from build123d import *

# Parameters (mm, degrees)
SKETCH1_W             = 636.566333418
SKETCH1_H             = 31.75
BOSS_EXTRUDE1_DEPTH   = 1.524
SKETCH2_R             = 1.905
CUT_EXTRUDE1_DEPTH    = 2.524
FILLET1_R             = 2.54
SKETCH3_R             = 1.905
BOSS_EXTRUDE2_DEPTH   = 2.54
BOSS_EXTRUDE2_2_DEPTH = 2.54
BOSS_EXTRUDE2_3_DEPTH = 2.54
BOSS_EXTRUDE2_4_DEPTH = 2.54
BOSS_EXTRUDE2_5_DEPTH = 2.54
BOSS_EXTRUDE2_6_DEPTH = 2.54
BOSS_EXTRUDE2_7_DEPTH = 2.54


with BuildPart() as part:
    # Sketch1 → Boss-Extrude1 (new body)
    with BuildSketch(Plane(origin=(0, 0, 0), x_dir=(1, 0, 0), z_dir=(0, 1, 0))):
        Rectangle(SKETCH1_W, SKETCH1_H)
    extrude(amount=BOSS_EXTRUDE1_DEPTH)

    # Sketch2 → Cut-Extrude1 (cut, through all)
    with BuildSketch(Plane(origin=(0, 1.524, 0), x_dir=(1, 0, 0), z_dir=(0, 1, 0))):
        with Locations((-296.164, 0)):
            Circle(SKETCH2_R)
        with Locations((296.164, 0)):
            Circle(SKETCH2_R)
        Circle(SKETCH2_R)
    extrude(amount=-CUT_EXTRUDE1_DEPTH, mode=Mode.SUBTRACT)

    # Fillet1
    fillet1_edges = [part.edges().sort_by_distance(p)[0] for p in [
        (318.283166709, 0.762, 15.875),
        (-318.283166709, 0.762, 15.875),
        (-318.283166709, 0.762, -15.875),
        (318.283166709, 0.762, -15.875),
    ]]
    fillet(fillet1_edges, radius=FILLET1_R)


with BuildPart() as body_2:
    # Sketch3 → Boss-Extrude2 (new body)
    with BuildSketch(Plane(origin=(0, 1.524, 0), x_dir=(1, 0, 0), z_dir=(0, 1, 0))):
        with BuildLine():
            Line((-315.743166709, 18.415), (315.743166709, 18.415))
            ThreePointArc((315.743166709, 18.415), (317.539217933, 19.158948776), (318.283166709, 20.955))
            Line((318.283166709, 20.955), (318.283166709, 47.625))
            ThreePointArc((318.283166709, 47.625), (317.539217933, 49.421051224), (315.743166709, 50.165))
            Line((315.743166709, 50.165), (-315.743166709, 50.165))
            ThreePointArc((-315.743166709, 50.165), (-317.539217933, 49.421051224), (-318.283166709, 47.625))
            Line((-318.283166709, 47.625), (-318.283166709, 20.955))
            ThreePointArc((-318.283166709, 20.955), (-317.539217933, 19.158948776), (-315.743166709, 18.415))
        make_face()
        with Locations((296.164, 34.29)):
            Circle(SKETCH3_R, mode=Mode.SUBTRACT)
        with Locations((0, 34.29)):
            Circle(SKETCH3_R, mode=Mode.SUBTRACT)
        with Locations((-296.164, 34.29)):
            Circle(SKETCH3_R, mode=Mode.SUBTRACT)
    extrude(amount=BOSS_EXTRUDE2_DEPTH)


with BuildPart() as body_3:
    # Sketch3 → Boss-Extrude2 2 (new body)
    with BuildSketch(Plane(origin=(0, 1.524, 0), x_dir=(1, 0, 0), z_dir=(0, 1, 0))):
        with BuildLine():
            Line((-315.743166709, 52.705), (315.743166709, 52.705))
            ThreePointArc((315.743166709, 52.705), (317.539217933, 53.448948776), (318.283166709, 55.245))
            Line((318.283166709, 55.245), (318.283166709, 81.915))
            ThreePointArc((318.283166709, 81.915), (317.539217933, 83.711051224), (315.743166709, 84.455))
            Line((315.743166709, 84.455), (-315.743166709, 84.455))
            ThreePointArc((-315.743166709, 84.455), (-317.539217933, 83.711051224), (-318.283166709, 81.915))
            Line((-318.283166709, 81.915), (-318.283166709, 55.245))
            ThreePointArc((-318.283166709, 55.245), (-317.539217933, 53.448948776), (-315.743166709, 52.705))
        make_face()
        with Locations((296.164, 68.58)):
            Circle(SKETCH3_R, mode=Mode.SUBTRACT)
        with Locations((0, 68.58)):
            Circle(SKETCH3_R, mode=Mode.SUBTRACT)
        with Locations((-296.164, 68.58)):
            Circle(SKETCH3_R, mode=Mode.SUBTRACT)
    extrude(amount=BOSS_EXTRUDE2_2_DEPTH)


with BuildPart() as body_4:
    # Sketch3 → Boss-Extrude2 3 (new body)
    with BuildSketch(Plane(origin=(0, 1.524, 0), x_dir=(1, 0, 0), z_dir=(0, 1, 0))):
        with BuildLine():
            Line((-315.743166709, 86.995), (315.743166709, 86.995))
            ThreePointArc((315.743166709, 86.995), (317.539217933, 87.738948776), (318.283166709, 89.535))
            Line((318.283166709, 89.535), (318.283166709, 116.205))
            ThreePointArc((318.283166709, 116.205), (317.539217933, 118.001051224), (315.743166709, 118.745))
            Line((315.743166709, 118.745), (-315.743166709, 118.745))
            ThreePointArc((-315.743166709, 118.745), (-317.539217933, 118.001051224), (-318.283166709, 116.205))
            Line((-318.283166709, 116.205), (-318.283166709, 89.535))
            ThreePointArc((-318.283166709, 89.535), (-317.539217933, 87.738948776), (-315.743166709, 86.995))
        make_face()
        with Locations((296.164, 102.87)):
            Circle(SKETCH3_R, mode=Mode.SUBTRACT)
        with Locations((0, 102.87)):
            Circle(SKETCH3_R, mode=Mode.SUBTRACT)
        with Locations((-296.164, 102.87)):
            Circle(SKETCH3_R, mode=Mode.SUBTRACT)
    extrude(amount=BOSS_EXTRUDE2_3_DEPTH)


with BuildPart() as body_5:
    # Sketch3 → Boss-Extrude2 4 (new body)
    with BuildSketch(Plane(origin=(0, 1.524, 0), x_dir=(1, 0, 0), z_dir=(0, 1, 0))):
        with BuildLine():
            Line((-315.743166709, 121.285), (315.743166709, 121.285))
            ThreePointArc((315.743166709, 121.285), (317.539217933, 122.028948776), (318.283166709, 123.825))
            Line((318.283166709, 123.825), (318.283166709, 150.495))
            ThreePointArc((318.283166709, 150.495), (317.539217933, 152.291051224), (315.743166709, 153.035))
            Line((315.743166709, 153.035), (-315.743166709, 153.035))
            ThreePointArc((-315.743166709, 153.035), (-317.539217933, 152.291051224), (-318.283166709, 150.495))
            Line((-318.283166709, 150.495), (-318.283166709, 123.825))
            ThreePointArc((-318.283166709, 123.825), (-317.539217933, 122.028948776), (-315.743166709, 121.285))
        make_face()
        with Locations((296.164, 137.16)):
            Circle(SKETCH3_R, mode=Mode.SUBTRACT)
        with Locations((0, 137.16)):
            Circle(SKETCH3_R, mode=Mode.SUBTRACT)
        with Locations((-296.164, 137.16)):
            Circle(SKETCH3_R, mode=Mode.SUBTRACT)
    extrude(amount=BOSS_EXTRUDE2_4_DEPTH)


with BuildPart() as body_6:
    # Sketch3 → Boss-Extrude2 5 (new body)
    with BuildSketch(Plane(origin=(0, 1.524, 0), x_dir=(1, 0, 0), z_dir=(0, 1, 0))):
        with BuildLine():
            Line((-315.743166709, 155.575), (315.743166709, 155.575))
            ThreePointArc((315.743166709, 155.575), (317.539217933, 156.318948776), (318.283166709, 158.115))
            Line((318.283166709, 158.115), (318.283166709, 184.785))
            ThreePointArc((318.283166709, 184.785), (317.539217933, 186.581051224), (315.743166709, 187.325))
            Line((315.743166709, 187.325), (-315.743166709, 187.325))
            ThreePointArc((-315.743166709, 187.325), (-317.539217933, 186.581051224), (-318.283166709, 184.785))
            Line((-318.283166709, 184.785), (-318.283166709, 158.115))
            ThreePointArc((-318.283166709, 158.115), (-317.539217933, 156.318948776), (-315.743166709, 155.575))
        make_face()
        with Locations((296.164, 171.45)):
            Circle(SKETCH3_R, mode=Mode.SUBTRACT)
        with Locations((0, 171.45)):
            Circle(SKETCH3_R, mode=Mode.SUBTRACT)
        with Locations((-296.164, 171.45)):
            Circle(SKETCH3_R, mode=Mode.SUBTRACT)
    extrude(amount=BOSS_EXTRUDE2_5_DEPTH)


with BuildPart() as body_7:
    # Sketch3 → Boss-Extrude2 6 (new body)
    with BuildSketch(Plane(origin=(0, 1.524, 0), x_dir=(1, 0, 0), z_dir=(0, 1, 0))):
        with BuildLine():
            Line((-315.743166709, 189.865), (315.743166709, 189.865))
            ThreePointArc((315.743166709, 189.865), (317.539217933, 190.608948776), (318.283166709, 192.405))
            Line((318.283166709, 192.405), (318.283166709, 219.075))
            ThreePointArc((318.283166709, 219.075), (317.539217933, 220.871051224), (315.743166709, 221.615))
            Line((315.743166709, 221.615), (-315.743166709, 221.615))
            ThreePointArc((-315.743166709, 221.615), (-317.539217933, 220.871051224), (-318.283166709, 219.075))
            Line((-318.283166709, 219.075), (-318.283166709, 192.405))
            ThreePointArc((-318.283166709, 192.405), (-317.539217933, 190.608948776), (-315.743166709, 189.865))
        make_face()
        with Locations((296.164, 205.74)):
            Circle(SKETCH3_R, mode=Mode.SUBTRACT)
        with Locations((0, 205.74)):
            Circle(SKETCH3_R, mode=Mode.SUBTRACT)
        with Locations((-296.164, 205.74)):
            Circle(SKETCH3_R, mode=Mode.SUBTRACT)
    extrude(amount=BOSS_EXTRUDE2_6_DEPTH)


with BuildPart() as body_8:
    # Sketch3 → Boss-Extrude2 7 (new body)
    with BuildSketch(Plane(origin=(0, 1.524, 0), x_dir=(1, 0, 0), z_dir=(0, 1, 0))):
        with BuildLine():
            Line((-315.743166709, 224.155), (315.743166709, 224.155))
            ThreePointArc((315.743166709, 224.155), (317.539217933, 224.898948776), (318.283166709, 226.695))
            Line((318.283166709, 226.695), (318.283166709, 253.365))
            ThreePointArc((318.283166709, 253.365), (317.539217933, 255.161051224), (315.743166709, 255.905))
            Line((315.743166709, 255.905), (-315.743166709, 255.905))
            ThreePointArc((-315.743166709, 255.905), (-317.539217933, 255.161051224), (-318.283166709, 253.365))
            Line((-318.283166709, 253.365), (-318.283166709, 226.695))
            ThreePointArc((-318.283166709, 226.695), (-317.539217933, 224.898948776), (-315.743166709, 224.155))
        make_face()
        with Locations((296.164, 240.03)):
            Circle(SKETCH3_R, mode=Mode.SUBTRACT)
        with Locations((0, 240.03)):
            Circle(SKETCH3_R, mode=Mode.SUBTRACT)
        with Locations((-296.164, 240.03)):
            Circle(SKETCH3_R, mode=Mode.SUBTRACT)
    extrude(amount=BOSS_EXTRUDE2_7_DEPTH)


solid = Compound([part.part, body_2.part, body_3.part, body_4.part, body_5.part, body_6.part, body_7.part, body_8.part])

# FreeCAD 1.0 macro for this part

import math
import FreeCAD as App
import Part
import Sketcher
Q = App.Units.Quantity


def edges_at(feature, points):
    """Names of the edges that pass closest to the given points."""
    edges = feature.Shape.Edges
    near = lambda p: min(range(len(edges)), key=lambda i: edges[i].distToShape(Part.Vertex(*p))[0])
    return sorted({f"Edge{near(p) + 1}" for p in points})


def add_polygon(sketch, points):
    """Adds a closed chain of lines whose ends are joined by coincident constraints."""
    first, n = sketch.GeometryCount, len(points)
    for a, b in zip(points, points[1:] + points[:1]):
        sketch.addGeometry(Part.LineSegment(App.Vector(*a, 0), App.Vector(*b, 0)), False)
    for i in range(n):
        sketch.addConstraint(Sketcher.Constraint("Coincident", first + i, 2, first + (i + 1) % n, 1))

doc = App.newDocument("Part")
body = doc.addObject("PartDesign::Body", "Body")

# Sketch on XZ plane
sketch1 = doc.addObject("Sketcher::SketchObject", "Sketch")
body.addObject(sketch1)
sketch1.AttachmentSupport = (doc.XZ_Plane, [""])
sketch1.MapMode = "FlatFace"
add_polygon(sketch1, [(-318.283167, -15.875), (-318.283167, 15.875), (318.283167, 15.875), (318.283167, -15.875)])  # lines 0-3
sketch1.addConstraint(Sketcher.Constraint("Vertical", 0))
sketch1.addConstraint(Sketcher.Constraint("Horizontal", 1))
sketch1.addConstraint(Sketcher.Constraint("Vertical", 2))
sketch1.addConstraint(Sketcher.Constraint("Horizontal", 3))
sketch1.addConstraint(Sketcher.Constraint("Symmetric", 0, 2, 2, 2, -1, 1))
sketch1.addConstraint(Sketcher.Constraint("DistanceY", 0, 1, 0, 2, Q("1.25 in")))
sketch1.addConstraint(Sketcher.Constraint("DistanceX", 1, 1, 1, 2, 636.566333))
pad1 = doc.addObject("PartDesign::Pad", "Pad")
body.addObject(pad1)
pad1.Profile = sketch1
pad1.Length = Q("0.06 in")
pad1.Reversed = True

# Sketch on XZ plane
sketch2 = doc.addObject("Sketcher::SketchObject", "Sketch001")
body.addObject(sketch2)
sketch2.AttachmentSupport = (doc.XZ_Plane, [""])
sketch2.MapMode = "FlatFace"
sketch2.AttachmentOffset = App.Placement(App.Vector(0, 0, -0.06 * 25.4), App.Rotation())
sketch2.addGeometry(Part.Circle(App.Vector(-296.164, 0, 0), App.Vector(0, 0, 1), 1.905), False)
sketch2.addGeometry(Part.Circle(App.Vector(296.164, 0, 0), App.Vector(0, 0, 1), 1.905), False)
sketch2.addGeometry(Part.Circle(App.Vector(0, 0, 0), App.Vector(0, 0, 1), 1.905), False)
sketch2.addConstraint(Sketcher.Constraint("Coincident", 2, 3, -1, 1))
sketch2.addConstraint(Sketcher.Constraint("Equal", 0, 1))
sketch2.addConstraint(Sketcher.Constraint("Equal", 1, 2))
sketch2.addConstraint(Sketcher.Constraint("Symmetric", 0, 3, 1, 3, -1, 1))
sketch2.addConstraint(Sketcher.Constraint("PointOnObject", 0, 3, -1))
sketch2.addConstraint(Sketcher.Constraint("Diameter", 0, Q("0.15 in")))
sketch2.addConstraint(Sketcher.Constraint("DistanceX", 0, 3, -1, 1, Q("11.66 in")))
pocket1 = doc.addObject("PartDesign::Pocket", "Pocket")
body.addObject(pocket1)
pocket1.Profile = sketch2
pocket1.Type = "ThroughAll"
pocket1.Reversed = True
doc.recompute()

fillet = doc.addObject("PartDesign::Fillet", "Fillet")
body.addObject(fillet)
fillet.Base = (pocket1, edges_at(pocket1, [
    (318.283, 0.762, 15.875),
    (-318.283, 0.762, 15.875),
    (-318.283, 0.762, -15.875),
    (318.283, 0.762, -15.875),
]))
fillet.Radius = Q("0.1 in")
body2 = doc.addObject("PartDesign::Body", "Body001")

# Sketch on XZ plane
sketch3 = doc.addObject("Sketcher::SketchObject", "Sketch002")
body2.addObject(sketch3)
sketch3.AttachmentSupport = (doc.getObject("XZ_Plane001"), [""])
sketch3.MapMode = "FlatFace"
sketch3.AttachmentOffset = App.Placement(App.Vector(0, 0, -0.06 * 25.4), App.Rotation())
sketch3.addGeometry(Part.LineSegment(App.Vector(-315.743167, -18.415, 0), App.Vector(315.743167, -18.415, 0)), False)
sketch3.addGeometry(Part.ArcOfCircle(Part.Circle(App.Vector(315.743167, -20.955, 0), App.Vector(0, 0, 1), 2.54), math.radians(0), math.radians(90)), False)
sketch3.addGeometry(Part.LineSegment(App.Vector(318.283167, -20.955, 0), App.Vector(318.283167, -47.625, 0)), False)
sketch3.addGeometry(Part.ArcOfCircle(Part.Circle(App.Vector(315.743167, -47.625, 0), App.Vector(0, 0, 1), 2.54), math.radians(-90), math.radians(0)), False)
sketch3.addGeometry(Part.LineSegment(App.Vector(315.743167, -50.165, 0), App.Vector(-315.743167, -50.165, 0)), False)
sketch3.addGeometry(Part.ArcOfCircle(Part.Circle(App.Vector(-315.743167, -47.625, 0), App.Vector(0, 0, 1), 2.54), math.radians(-180), math.radians(-90)), False)
sketch3.addGeometry(Part.LineSegment(App.Vector(-318.283167, -47.625, 0), App.Vector(-318.283167, -20.955, 0)), False)
sketch3.addGeometry(Part.ArcOfCircle(Part.Circle(App.Vector(-315.743167, -20.955, 0), App.Vector(0, 0, 1), 2.54), math.radians(90), math.radians(180)), False)
sketch3.addGeometry(Part.Circle(App.Vector(-296.164, -34.29, 0), App.Vector(0, 0, 1), 1.905), False)
sketch3.addGeometry(Part.Circle(App.Vector(0, -34.29, 0), App.Vector(0, 0, 1), 1.905), False)
sketch3.addGeometry(Part.Circle(App.Vector(296.164, -34.29, 0), App.Vector(0, 0, 1), 1.905), False)
sketch3.addConstraint(Sketcher.Constraint("Tangent", 0, 2, 1, 2))
sketch3.addConstraint(Sketcher.Constraint("Tangent", 1, 1, 2, 1))
sketch3.addConstraint(Sketcher.Constraint("Tangent", 2, 2, 3, 2))
sketch3.addConstraint(Sketcher.Constraint("Tangent", 3, 1, 4, 1))
sketch3.addConstraint(Sketcher.Constraint("Tangent", 4, 2, 5, 2))
sketch3.addConstraint(Sketcher.Constraint("Tangent", 5, 1, 6, 1))
sketch3.addConstraint(Sketcher.Constraint("Tangent", 6, 2, 7, 2))
sketch3.addConstraint(Sketcher.Constraint("Tangent", 7, 1, 0, 1))
sketch3.addConstraint(Sketcher.Constraint("Horizontal", 0))
sketch3.addConstraint(Sketcher.Constraint("Vertical", 2))
sketch3.addConstraint(Sketcher.Constraint("Horizontal", 4))
sketch3.addConstraint(Sketcher.Constraint("Vertical", 6))
sketch3.addConstraint(Sketcher.Constraint("Equal", 1, 3))
sketch3.addConstraint(Sketcher.Constraint("Equal", 3, 5))
sketch3.addConstraint(Sketcher.Constraint("Equal", 5, 7))
sketch3.addConstraint(Sketcher.Constraint("Equal", 8, 9))
sketch3.addConstraint(Sketcher.Constraint("Equal", 9, 10))
sketch3.addConstraint(Sketcher.Constraint("Symmetric", 8, 3, 10, 3, -2))
sketch3.addConstraint(Sketcher.Constraint("PointOnObject", 9, 3, -2))
sketch3.addConstraint(Sketcher.Constraint("Horizontal", 8, 3, 9, 3))
sketch3.addConstraint(Sketcher.Constraint("Radius", 1, Q("0.1 in")))
sketch3.addConstraint(Sketcher.Constraint("Diameter", 8, Q("0.15 in")))
sketch3.addConstraint(Sketcher.Constraint("DistanceY", 2, 2, 2, 1, Q("1.05 in")))
sketch3.addConstraint(Sketcher.Constraint("DistanceX", 8, 3, -1, 1, Q("11.66 in")))
sketch3.addConstraint(Sketcher.Constraint("DistanceY", 8, 3, -1, 1, Q("1.35 in")))
sketch3.addConstraint(Sketcher.Constraint("DistanceY", 1, 3, -1, 1, Q("0.825 in")))
sketch3.addConstraint(Sketcher.Constraint("DistanceX", 0, 1, 0, 2, 631.486333))
sketch3.addConstraint(Sketcher.Constraint("DistanceX", -1, 1, 1, 3, 315.743167))
pad2 = doc.addObject("PartDesign::Pad", "Pad001")
body2.addObject(pad2)
pad2.Profile = sketch3
pad2.Length = Q("0.1 in")
pad2.Reversed = True
body3 = doc.addObject("PartDesign::Body", "Body002")

# Sketch on XZ plane
sketch4 = doc.addObject("Sketcher::SketchObject", "Sketch003")
body3.addObject(sketch4)
sketch4.AttachmentSupport = (doc.getObject("XZ_Plane002"), [""])
sketch4.MapMode = "FlatFace"
sketch4.AttachmentOffset = App.Placement(App.Vector(0, 0, -0.06 * 25.4), App.Rotation())
sketch4.addGeometry(Part.LineSegment(App.Vector(-315.743167, -52.705, 0), App.Vector(315.743167, -52.705, 0)), False)
sketch4.addGeometry(Part.ArcOfCircle(Part.Circle(App.Vector(315.743167, -55.245, 0), App.Vector(0, 0, 1), 2.54), math.radians(0), math.radians(90)), False)
sketch4.addGeometry(Part.LineSegment(App.Vector(318.283167, -55.245, 0), App.Vector(318.283167, -81.915, 0)), False)
sketch4.addGeometry(Part.ArcOfCircle(Part.Circle(App.Vector(315.743167, -81.915, 0), App.Vector(0, 0, 1), 2.54), math.radians(-90), math.radians(0)), False)
sketch4.addGeometry(Part.LineSegment(App.Vector(315.743167, -84.455, 0), App.Vector(-315.743167, -84.455, 0)), False)
sketch4.addGeometry(Part.ArcOfCircle(Part.Circle(App.Vector(-315.743167, -81.915, 0), App.Vector(0, 0, 1), 2.54), math.radians(-180), math.radians(-90)), False)
sketch4.addGeometry(Part.LineSegment(App.Vector(-318.283167, -81.915, 0), App.Vector(-318.283167, -55.245, 0)), False)
sketch4.addGeometry(Part.ArcOfCircle(Part.Circle(App.Vector(-315.743167, -55.245, 0), App.Vector(0, 0, 1), 2.54), math.radians(90), math.radians(180)), False)
sketch4.addGeometry(Part.Circle(App.Vector(-296.164, -68.58, 0), App.Vector(0, 0, 1), 1.905), False)
sketch4.addGeometry(Part.Circle(App.Vector(0, -68.58, 0), App.Vector(0, 0, 1), 1.905), False)
sketch4.addGeometry(Part.Circle(App.Vector(296.164, -68.58, 0), App.Vector(0, 0, 1), 1.905), False)
sketch4.addConstraint(Sketcher.Constraint("Tangent", 0, 2, 1, 2))
sketch4.addConstraint(Sketcher.Constraint("Tangent", 1, 1, 2, 1))
sketch4.addConstraint(Sketcher.Constraint("Tangent", 2, 2, 3, 2))
sketch4.addConstraint(Sketcher.Constraint("Tangent", 3, 1, 4, 1))
sketch4.addConstraint(Sketcher.Constraint("Tangent", 4, 2, 5, 2))
sketch4.addConstraint(Sketcher.Constraint("Tangent", 5, 1, 6, 1))
sketch4.addConstraint(Sketcher.Constraint("Tangent", 6, 2, 7, 2))
sketch4.addConstraint(Sketcher.Constraint("Tangent", 7, 1, 0, 1))
sketch4.addConstraint(Sketcher.Constraint("Horizontal", 0))
sketch4.addConstraint(Sketcher.Constraint("Vertical", 2))
sketch4.addConstraint(Sketcher.Constraint("Horizontal", 4))
sketch4.addConstraint(Sketcher.Constraint("Vertical", 6))
sketch4.addConstraint(Sketcher.Constraint("Equal", 1, 3))
sketch4.addConstraint(Sketcher.Constraint("Equal", 3, 5))
sketch4.addConstraint(Sketcher.Constraint("Equal", 5, 7))
sketch4.addConstraint(Sketcher.Constraint("Equal", 8, 9))
sketch4.addConstraint(Sketcher.Constraint("Equal", 9, 10))
sketch4.addConstraint(Sketcher.Constraint("Symmetric", 8, 3, 10, 3, -2))
sketch4.addConstraint(Sketcher.Constraint("PointOnObject", 9, 3, -2))
sketch4.addConstraint(Sketcher.Constraint("Horizontal", 8, 3, 9, 3))
sketch4.addConstraint(Sketcher.Constraint("Radius", 1, Q("0.1 in")))
sketch4.addConstraint(Sketcher.Constraint("Diameter", 8, Q("0.15 in")))
sketch4.addConstraint(Sketcher.Constraint("DistanceY", 2, 2, 2, 1, Q("1.05 in")))
sketch4.addConstraint(Sketcher.Constraint("DistanceY", 8, 3, -1, 1, Q("2.7 in")))
sketch4.addConstraint(Sketcher.Constraint("DistanceX", 8, 3, -1, 1, Q("11.66 in")))
sketch4.addConstraint(Sketcher.Constraint("DistanceY", 1, 3, -1, 1, Q("2.175 in")))
sketch4.addConstraint(Sketcher.Constraint("DistanceX", 0, 1, 0, 2, 631.486333))
sketch4.addConstraint(Sketcher.Constraint("DistanceX", -1, 1, 1, 3, 315.743167))
pad3 = doc.addObject("PartDesign::Pad", "Pad002")
body3.addObject(pad3)
pad3.Profile = sketch4
pad3.Length = Q("0.1 in")
pad3.Reversed = True
body4 = doc.addObject("PartDesign::Body", "Body003")

# Sketch on XZ plane
sketch5 = doc.addObject("Sketcher::SketchObject", "Sketch004")
body4.addObject(sketch5)
sketch5.AttachmentSupport = (doc.getObject("XZ_Plane003"), [""])
sketch5.MapMode = "FlatFace"
sketch5.AttachmentOffset = App.Placement(App.Vector(0, 0, -0.06 * 25.4), App.Rotation())
sketch5.addGeometry(Part.LineSegment(App.Vector(-315.743167, -86.995, 0), App.Vector(315.743167, -86.995, 0)), False)
sketch5.addGeometry(Part.ArcOfCircle(Part.Circle(App.Vector(315.743167, -89.535, 0), App.Vector(0, 0, 1), 2.54), math.radians(0), math.radians(90)), False)
sketch5.addGeometry(Part.LineSegment(App.Vector(318.283167, -89.535, 0), App.Vector(318.283167, -116.205, 0)), False)
sketch5.addGeometry(Part.ArcOfCircle(Part.Circle(App.Vector(315.743167, -116.205, 0), App.Vector(0, 0, 1), 2.54), math.radians(-90), math.radians(0)), False)
sketch5.addGeometry(Part.LineSegment(App.Vector(315.743167, -118.745, 0), App.Vector(-315.743167, -118.745, 0)), False)
sketch5.addGeometry(Part.ArcOfCircle(Part.Circle(App.Vector(-315.743167, -116.205, 0), App.Vector(0, 0, 1), 2.54), math.radians(-180), math.radians(-90)), False)
sketch5.addGeometry(Part.LineSegment(App.Vector(-318.283167, -116.205, 0), App.Vector(-318.283167, -89.535, 0)), False)
sketch5.addGeometry(Part.ArcOfCircle(Part.Circle(App.Vector(-315.743167, -89.535, 0), App.Vector(0, 0, 1), 2.54), math.radians(90), math.radians(180)), False)
sketch5.addGeometry(Part.Circle(App.Vector(-296.164, -102.87, 0), App.Vector(0, 0, 1), 1.905), False)
sketch5.addGeometry(Part.Circle(App.Vector(0, -102.87, 0), App.Vector(0, 0, 1), 1.905), False)
sketch5.addGeometry(Part.Circle(App.Vector(296.164, -102.87, 0), App.Vector(0, 0, 1), 1.905), False)
sketch5.addConstraint(Sketcher.Constraint("Tangent", 0, 2, 1, 2))
sketch5.addConstraint(Sketcher.Constraint("Tangent", 1, 1, 2, 1))
sketch5.addConstraint(Sketcher.Constraint("Tangent", 2, 2, 3, 2))
sketch5.addConstraint(Sketcher.Constraint("Tangent", 3, 1, 4, 1))
sketch5.addConstraint(Sketcher.Constraint("Tangent", 4, 2, 5, 2))
sketch5.addConstraint(Sketcher.Constraint("Tangent", 5, 1, 6, 1))
sketch5.addConstraint(Sketcher.Constraint("Tangent", 6, 2, 7, 2))
sketch5.addConstraint(Sketcher.Constraint("Tangent", 7, 1, 0, 1))
sketch5.addConstraint(Sketcher.Constraint("Horizontal", 0))
sketch5.addConstraint(Sketcher.Constraint("Vertical", 2))
sketch5.addConstraint(Sketcher.Constraint("Horizontal", 4))
sketch5.addConstraint(Sketcher.Constraint("Vertical", 6))
sketch5.addConstraint(Sketcher.Constraint("Equal", 1, 3))
sketch5.addConstraint(Sketcher.Constraint("Equal", 3, 5))
sketch5.addConstraint(Sketcher.Constraint("Equal", 5, 7))
sketch5.addConstraint(Sketcher.Constraint("Equal", 8, 9))
sketch5.addConstraint(Sketcher.Constraint("Equal", 9, 10))
sketch5.addConstraint(Sketcher.Constraint("Symmetric", 8, 3, 10, 3, -2))
sketch5.addConstraint(Sketcher.Constraint("PointOnObject", 9, 3, -2))
sketch5.addConstraint(Sketcher.Constraint("Horizontal", 8, 3, 9, 3))
sketch5.addConstraint(Sketcher.Constraint("Radius", 1, Q("0.1 in")))
sketch5.addConstraint(Sketcher.Constraint("Diameter", 8, Q("0.15 in")))
sketch5.addConstraint(Sketcher.Constraint("DistanceY", 2, 2, 2, 1, Q("1.05 in")))
sketch5.addConstraint(Sketcher.Constraint("DistanceX", 8, 3, -1, 1, Q("11.66 in")))
sketch5.addConstraint(Sketcher.Constraint("DistanceY", 8, 3, -1, 1, Q("4.05 in")))
sketch5.addConstraint(Sketcher.Constraint("DistanceY", 1, 3, -1, 1, Q("3.525 in")))
sketch5.addConstraint(Sketcher.Constraint("DistanceX", 0, 1, 0, 2, 631.486333))
sketch5.addConstraint(Sketcher.Constraint("DistanceX", -1, 1, 1, 3, 315.743167))
pad4 = doc.addObject("PartDesign::Pad", "Pad003")
body4.addObject(pad4)
pad4.Profile = sketch5
pad4.Length = Q("0.1 in")
pad4.Reversed = True
body5 = doc.addObject("PartDesign::Body", "Body004")

# Sketch on XZ plane
sketch6 = doc.addObject("Sketcher::SketchObject", "Sketch005")
body5.addObject(sketch6)
sketch6.AttachmentSupport = (doc.getObject("XZ_Plane004"), [""])
sketch6.MapMode = "FlatFace"
sketch6.AttachmentOffset = App.Placement(App.Vector(0, 0, -0.06 * 25.4), App.Rotation())
sketch6.addGeometry(Part.LineSegment(App.Vector(-315.743167, -121.285, 0), App.Vector(315.743167, -121.285, 0)), False)
sketch6.addGeometry(Part.ArcOfCircle(Part.Circle(App.Vector(315.743167, -123.825, 0), App.Vector(0, 0, 1), 2.54), math.radians(0), math.radians(90)), False)
sketch6.addGeometry(Part.LineSegment(App.Vector(318.283167, -123.825, 0), App.Vector(318.283167, -150.495, 0)), False)
sketch6.addGeometry(Part.ArcOfCircle(Part.Circle(App.Vector(315.743167, -150.495, 0), App.Vector(0, 0, 1), 2.54), math.radians(-90), math.radians(0)), False)
sketch6.addGeometry(Part.LineSegment(App.Vector(315.743167, -153.035, 0), App.Vector(-315.743167, -153.035, 0)), False)
sketch6.addGeometry(Part.ArcOfCircle(Part.Circle(App.Vector(-315.743167, -150.495, 0), App.Vector(0, 0, 1), 2.54), math.radians(-180), math.radians(-90)), False)
sketch6.addGeometry(Part.LineSegment(App.Vector(-318.283167, -150.495, 0), App.Vector(-318.283167, -123.825, 0)), False)
sketch6.addGeometry(Part.ArcOfCircle(Part.Circle(App.Vector(-315.743167, -123.825, 0), App.Vector(0, 0, 1), 2.54), math.radians(90), math.radians(180)), False)
sketch6.addGeometry(Part.Circle(App.Vector(-296.164, -137.16, 0), App.Vector(0, 0, 1), 1.905), False)
sketch6.addGeometry(Part.Circle(App.Vector(0, -137.16, 0), App.Vector(0, 0, 1), 1.905), False)
sketch6.addGeometry(Part.Circle(App.Vector(296.164, -137.16, 0), App.Vector(0, 0, 1), 1.905), False)
sketch6.addConstraint(Sketcher.Constraint("Tangent", 0, 2, 1, 2))
sketch6.addConstraint(Sketcher.Constraint("Tangent", 1, 1, 2, 1))
sketch6.addConstraint(Sketcher.Constraint("Tangent", 2, 2, 3, 2))
sketch6.addConstraint(Sketcher.Constraint("Tangent", 3, 1, 4, 1))
sketch6.addConstraint(Sketcher.Constraint("Tangent", 4, 2, 5, 2))
sketch6.addConstraint(Sketcher.Constraint("Tangent", 5, 1, 6, 1))
sketch6.addConstraint(Sketcher.Constraint("Tangent", 6, 2, 7, 2))
sketch6.addConstraint(Sketcher.Constraint("Tangent", 7, 1, 0, 1))
sketch6.addConstraint(Sketcher.Constraint("Horizontal", 0))
sketch6.addConstraint(Sketcher.Constraint("Vertical", 2))
sketch6.addConstraint(Sketcher.Constraint("Horizontal", 4))
sketch6.addConstraint(Sketcher.Constraint("Vertical", 6))
sketch6.addConstraint(Sketcher.Constraint("Equal", 1, 3))
sketch6.addConstraint(Sketcher.Constraint("Equal", 3, 5))
sketch6.addConstraint(Sketcher.Constraint("Equal", 5, 7))
sketch6.addConstraint(Sketcher.Constraint("Equal", 8, 9))
sketch6.addConstraint(Sketcher.Constraint("Equal", 9, 10))
sketch6.addConstraint(Sketcher.Constraint("Symmetric", 8, 3, 10, 3, -2))
sketch6.addConstraint(Sketcher.Constraint("PointOnObject", 9, 3, -2))
sketch6.addConstraint(Sketcher.Constraint("Horizontal", 8, 3, 9, 3))
sketch6.addConstraint(Sketcher.Constraint("Radius", 1, Q("0.1 in")))
sketch6.addConstraint(Sketcher.Constraint("Diameter", 8, Q("0.15 in")))
sketch6.addConstraint(Sketcher.Constraint("DistanceY", 2, 2, 2, 1, Q("1.05 in")))
sketch6.addConstraint(Sketcher.Constraint("DistanceY", 8, 3, -1, 1, Q("5.4 in")))
sketch6.addConstraint(Sketcher.Constraint("DistanceX", 8, 3, -1, 1, Q("11.66 in")))
sketch6.addConstraint(Sketcher.Constraint("DistanceY", 1, 3, -1, 1, Q("4.875 in")))
sketch6.addConstraint(Sketcher.Constraint("DistanceX", 0, 1, 0, 2, 631.486333))
sketch6.addConstraint(Sketcher.Constraint("DistanceX", -1, 1, 1, 3, 315.743167))
pad5 = doc.addObject("PartDesign::Pad", "Pad004")
body5.addObject(pad5)
pad5.Profile = sketch6
pad5.Length = Q("0.1 in")
pad5.Reversed = True
body6 = doc.addObject("PartDesign::Body", "Body005")

# Sketch on XZ plane
sketch7 = doc.addObject("Sketcher::SketchObject", "Sketch006")
body6.addObject(sketch7)
sketch7.AttachmentSupport = (doc.getObject("XZ_Plane005"), [""])
sketch7.MapMode = "FlatFace"
sketch7.AttachmentOffset = App.Placement(App.Vector(0, 0, -0.06 * 25.4), App.Rotation())
sketch7.addGeometry(Part.LineSegment(App.Vector(-315.743167, -155.575, 0), App.Vector(315.743167, -155.575, 0)), False)
sketch7.addGeometry(Part.ArcOfCircle(Part.Circle(App.Vector(315.743167, -158.115, 0), App.Vector(0, 0, 1), 2.54), math.radians(0), math.radians(90)), False)
sketch7.addGeometry(Part.LineSegment(App.Vector(318.283167, -158.115, 0), App.Vector(318.283167, -184.785, 0)), False)
sketch7.addGeometry(Part.ArcOfCircle(Part.Circle(App.Vector(315.743167, -184.785, 0), App.Vector(0, 0, 1), 2.54), math.radians(-90), math.radians(0)), False)
sketch7.addGeometry(Part.LineSegment(App.Vector(315.743167, -187.325, 0), App.Vector(-315.743167, -187.325, 0)), False)
sketch7.addGeometry(Part.ArcOfCircle(Part.Circle(App.Vector(-315.743167, -184.785, 0), App.Vector(0, 0, 1), 2.54), math.radians(-180), math.radians(-90)), False)
sketch7.addGeometry(Part.LineSegment(App.Vector(-318.283167, -184.785, 0), App.Vector(-318.283167, -158.115, 0)), False)
sketch7.addGeometry(Part.ArcOfCircle(Part.Circle(App.Vector(-315.743167, -158.115, 0), App.Vector(0, 0, 1), 2.54), math.radians(90), math.radians(180)), False)
sketch7.addGeometry(Part.Circle(App.Vector(-296.164, -171.45, 0), App.Vector(0, 0, 1), 1.905), False)
sketch7.addGeometry(Part.Circle(App.Vector(0, -171.45, 0), App.Vector(0, 0, 1), 1.905), False)
sketch7.addGeometry(Part.Circle(App.Vector(296.164, -171.45, 0), App.Vector(0, 0, 1), 1.905), False)
sketch7.addConstraint(Sketcher.Constraint("Tangent", 0, 2, 1, 2))
sketch7.addConstraint(Sketcher.Constraint("Tangent", 1, 1, 2, 1))
sketch7.addConstraint(Sketcher.Constraint("Tangent", 2, 2, 3, 2))
sketch7.addConstraint(Sketcher.Constraint("Tangent", 3, 1, 4, 1))
sketch7.addConstraint(Sketcher.Constraint("Tangent", 4, 2, 5, 2))
sketch7.addConstraint(Sketcher.Constraint("Tangent", 5, 1, 6, 1))
sketch7.addConstraint(Sketcher.Constraint("Tangent", 6, 2, 7, 2))
sketch7.addConstraint(Sketcher.Constraint("Tangent", 7, 1, 0, 1))
sketch7.addConstraint(Sketcher.Constraint("Horizontal", 0))
sketch7.addConstraint(Sketcher.Constraint("Vertical", 2))
sketch7.addConstraint(Sketcher.Constraint("Horizontal", 4))
sketch7.addConstraint(Sketcher.Constraint("Vertical", 6))
sketch7.addConstraint(Sketcher.Constraint("Equal", 1, 3))
sketch7.addConstraint(Sketcher.Constraint("Equal", 3, 5))
sketch7.addConstraint(Sketcher.Constraint("Equal", 5, 7))
sketch7.addConstraint(Sketcher.Constraint("Equal", 8, 9))
sketch7.addConstraint(Sketcher.Constraint("Equal", 9, 10))
sketch7.addConstraint(Sketcher.Constraint("Symmetric", 8, 3, 10, 3, -2))
sketch7.addConstraint(Sketcher.Constraint("PointOnObject", 9, 3, -2))
sketch7.addConstraint(Sketcher.Constraint("Horizontal", 8, 3, 9, 3))
sketch7.addConstraint(Sketcher.Constraint("Radius", 1, Q("0.1 in")))
sketch7.addConstraint(Sketcher.Constraint("Diameter", 8, Q("0.15 in")))
sketch7.addConstraint(Sketcher.Constraint("DistanceY", 2, 2, 2, 1, Q("1.05 in")))
sketch7.addConstraint(Sketcher.Constraint("DistanceX", 8, 3, -1, 1, Q("11.66 in")))
sketch7.addConstraint(Sketcher.Constraint("DistanceY", 8, 3, -1, 1, Q("6.75 in")))
sketch7.addConstraint(Sketcher.Constraint("DistanceY", 1, 3, -1, 1, Q("6.225 in")))
sketch7.addConstraint(Sketcher.Constraint("DistanceX", 0, 1, 0, 2, 631.486333))
sketch7.addConstraint(Sketcher.Constraint("DistanceX", -1, 1, 1, 3, 315.743167))
pad6 = doc.addObject("PartDesign::Pad", "Pad005")
body6.addObject(pad6)
pad6.Profile = sketch7
pad6.Length = Q("0.1 in")
pad6.Reversed = True
body7 = doc.addObject("PartDesign::Body", "Body006")

# Sketch on XZ plane
sketch8 = doc.addObject("Sketcher::SketchObject", "Sketch007")
body7.addObject(sketch8)
sketch8.AttachmentSupport = (doc.getObject("XZ_Plane006"), [""])
sketch8.MapMode = "FlatFace"
sketch8.AttachmentOffset = App.Placement(App.Vector(0, 0, -0.06 * 25.4), App.Rotation())
sketch8.addGeometry(Part.LineSegment(App.Vector(-315.743167, -189.865, 0), App.Vector(315.743167, -189.865, 0)), False)
sketch8.addGeometry(Part.ArcOfCircle(Part.Circle(App.Vector(315.743167, -192.405, 0), App.Vector(0, 0, 1), 2.54), math.radians(0), math.radians(90)), False)
sketch8.addGeometry(Part.LineSegment(App.Vector(318.283167, -192.405, 0), App.Vector(318.283167, -219.075, 0)), False)
sketch8.addGeometry(Part.ArcOfCircle(Part.Circle(App.Vector(315.743167, -219.075, 0), App.Vector(0, 0, 1), 2.54), math.radians(-90), math.radians(0)), False)
sketch8.addGeometry(Part.LineSegment(App.Vector(315.743167, -221.615, 0), App.Vector(-315.743167, -221.615, 0)), False)
sketch8.addGeometry(Part.ArcOfCircle(Part.Circle(App.Vector(-315.743167, -219.075, 0), App.Vector(0, 0, 1), 2.54), math.radians(-180), math.radians(-90)), False)
sketch8.addGeometry(Part.LineSegment(App.Vector(-318.283167, -219.075, 0), App.Vector(-318.283167, -192.405, 0)), False)
sketch8.addGeometry(Part.ArcOfCircle(Part.Circle(App.Vector(-315.743167, -192.405, 0), App.Vector(0, 0, 1), 2.54), math.radians(90), math.radians(180)), False)
sketch8.addGeometry(Part.Circle(App.Vector(-296.164, -205.74, 0), App.Vector(0, 0, 1), 1.905), False)
sketch8.addGeometry(Part.Circle(App.Vector(0, -205.74, 0), App.Vector(0, 0, 1), 1.905), False)
sketch8.addGeometry(Part.Circle(App.Vector(296.164, -205.74, 0), App.Vector(0, 0, 1), 1.905), False)
sketch8.addConstraint(Sketcher.Constraint("Tangent", 0, 2, 1, 2))
sketch8.addConstraint(Sketcher.Constraint("Tangent", 1, 1, 2, 1))
sketch8.addConstraint(Sketcher.Constraint("Tangent", 2, 2, 3, 2))
sketch8.addConstraint(Sketcher.Constraint("Tangent", 3, 1, 4, 1))
sketch8.addConstraint(Sketcher.Constraint("Tangent", 4, 2, 5, 2))
sketch8.addConstraint(Sketcher.Constraint("Tangent", 5, 1, 6, 1))
sketch8.addConstraint(Sketcher.Constraint("Tangent", 6, 2, 7, 2))
sketch8.addConstraint(Sketcher.Constraint("Tangent", 7, 1, 0, 1))
sketch8.addConstraint(Sketcher.Constraint("Horizontal", 0))
sketch8.addConstraint(Sketcher.Constraint("Vertical", 2))
sketch8.addConstraint(Sketcher.Constraint("Horizontal", 4))
sketch8.addConstraint(Sketcher.Constraint("Vertical", 6))
sketch8.addConstraint(Sketcher.Constraint("Equal", 1, 3))
sketch8.addConstraint(Sketcher.Constraint("Equal", 3, 5))
sketch8.addConstraint(Sketcher.Constraint("Equal", 5, 7))
sketch8.addConstraint(Sketcher.Constraint("Equal", 8, 9))
sketch8.addConstraint(Sketcher.Constraint("Equal", 9, 10))
sketch8.addConstraint(Sketcher.Constraint("Symmetric", 8, 3, 10, 3, -2))
sketch8.addConstraint(Sketcher.Constraint("PointOnObject", 9, 3, -2))
sketch8.addConstraint(Sketcher.Constraint("Horizontal", 8, 3, 9, 3))
sketch8.addConstraint(Sketcher.Constraint("Radius", 1, Q("0.1 in")))
sketch8.addConstraint(Sketcher.Constraint("Diameter", 8, Q("0.15 in")))
sketch8.addConstraint(Sketcher.Constraint("DistanceY", 2, 2, 2, 1, Q("1.05 in")))
sketch8.addConstraint(Sketcher.Constraint("DistanceY", 8, 3, -1, 1, Q("8.1 in")))
sketch8.addConstraint(Sketcher.Constraint("DistanceX", 8, 3, -1, 1, Q("11.66 in")))
sketch8.addConstraint(Sketcher.Constraint("DistanceY", 1, 3, -1, 1, Q("7.575 in")))
sketch8.addConstraint(Sketcher.Constraint("DistanceX", 0, 1, 0, 2, 631.486333))
sketch8.addConstraint(Sketcher.Constraint("DistanceX", -1, 1, 1, 3, 315.743167))
pad7 = doc.addObject("PartDesign::Pad", "Pad006")
body7.addObject(pad7)
pad7.Profile = sketch8
pad7.Length = Q("0.1 in")
pad7.Reversed = True
body8 = doc.addObject("PartDesign::Body", "Body007")

# Sketch on XZ plane
sketch9 = doc.addObject("Sketcher::SketchObject", "Sketch008")
body8.addObject(sketch9)
sketch9.AttachmentSupport = (doc.getObject("XZ_Plane007"), [""])
sketch9.MapMode = "FlatFace"
sketch9.AttachmentOffset = App.Placement(App.Vector(0, 0, -0.06 * 25.4), App.Rotation())
sketch9.addGeometry(Part.LineSegment(App.Vector(-315.743167, -224.155, 0), App.Vector(315.743167, -224.155, 0)), False)
sketch9.addGeometry(Part.ArcOfCircle(Part.Circle(App.Vector(315.743167, -226.695, 0), App.Vector(0, 0, 1), 2.54), math.radians(0), math.radians(90)), False)
sketch9.addGeometry(Part.LineSegment(App.Vector(318.283167, -226.695, 0), App.Vector(318.283167, -253.365, 0)), False)
sketch9.addGeometry(Part.ArcOfCircle(Part.Circle(App.Vector(315.743167, -253.365, 0), App.Vector(0, 0, 1), 2.54), math.radians(-90), math.radians(0)), False)
sketch9.addGeometry(Part.LineSegment(App.Vector(315.743167, -255.905, 0), App.Vector(-315.743167, -255.905, 0)), False)
sketch9.addGeometry(Part.ArcOfCircle(Part.Circle(App.Vector(-315.743167, -253.365, 0), App.Vector(0, 0, 1), 2.54), math.radians(-180), math.radians(-90)), False)
sketch9.addGeometry(Part.LineSegment(App.Vector(-318.283167, -253.365, 0), App.Vector(-318.283167, -226.695, 0)), False)
sketch9.addGeometry(Part.ArcOfCircle(Part.Circle(App.Vector(-315.743167, -226.695, 0), App.Vector(0, 0, 1), 2.54), math.radians(90), math.radians(180)), False)
sketch9.addGeometry(Part.Circle(App.Vector(-296.164, -240.03, 0), App.Vector(0, 0, 1), 1.905), False)
sketch9.addGeometry(Part.Circle(App.Vector(0, -240.03, 0), App.Vector(0, 0, 1), 1.905), False)
sketch9.addGeometry(Part.Circle(App.Vector(296.164, -240.03, 0), App.Vector(0, 0, 1), 1.905), False)
sketch9.addConstraint(Sketcher.Constraint("Tangent", 0, 2, 1, 2))
sketch9.addConstraint(Sketcher.Constraint("Tangent", 1, 1, 2, 1))
sketch9.addConstraint(Sketcher.Constraint("Tangent", 2, 2, 3, 2))
sketch9.addConstraint(Sketcher.Constraint("Tangent", 3, 1, 4, 1))
sketch9.addConstraint(Sketcher.Constraint("Tangent", 4, 2, 5, 2))
sketch9.addConstraint(Sketcher.Constraint("Tangent", 5, 1, 6, 1))
sketch9.addConstraint(Sketcher.Constraint("Tangent", 6, 2, 7, 2))
sketch9.addConstraint(Sketcher.Constraint("Tangent", 7, 1, 0, 1))
sketch9.addConstraint(Sketcher.Constraint("Horizontal", 0))
sketch9.addConstraint(Sketcher.Constraint("Vertical", 2))
sketch9.addConstraint(Sketcher.Constraint("Horizontal", 4))
sketch9.addConstraint(Sketcher.Constraint("Vertical", 6))
sketch9.addConstraint(Sketcher.Constraint("Equal", 1, 3))
sketch9.addConstraint(Sketcher.Constraint("Equal", 3, 5))
sketch9.addConstraint(Sketcher.Constraint("Equal", 5, 7))
sketch9.addConstraint(Sketcher.Constraint("Equal", 8, 9))
sketch9.addConstraint(Sketcher.Constraint("Equal", 9, 10))
sketch9.addConstraint(Sketcher.Constraint("Symmetric", 8, 3, 10, 3, -2))
sketch9.addConstraint(Sketcher.Constraint("PointOnObject", 9, 3, -2))
sketch9.addConstraint(Sketcher.Constraint("Horizontal", 8, 3, 9, 3))
sketch9.addConstraint(Sketcher.Constraint("Radius", 1, Q("0.1 in")))
sketch9.addConstraint(Sketcher.Constraint("Diameter", 8, Q("0.15 in")))
sketch9.addConstraint(Sketcher.Constraint("DistanceY", 2, 2, 2, 1, Q("1.05 in")))
sketch9.addConstraint(Sketcher.Constraint("DistanceX", 8, 3, -1, 1, Q("11.66 in")))
sketch9.addConstraint(Sketcher.Constraint("DistanceY", 8, 3, -1, 1, Q("9.45 in")))
sketch9.addConstraint(Sketcher.Constraint("DistanceY", 1, 3, -1, 1, Q("8.925 in")))
sketch9.addConstraint(Sketcher.Constraint("DistanceX", 0, 1, 0, 2, 631.486333))
sketch9.addConstraint(Sketcher.Constraint("DistanceX", -1, 1, 1, 3, 315.743167))
pad8 = doc.addObject("PartDesign::Pad", "Pad007")
body8.addObject(pad8)
pad8.Profile = sketch9
pad8.Length = Q("0.1 in")
pad8.Reversed = True

doc.recompute()
